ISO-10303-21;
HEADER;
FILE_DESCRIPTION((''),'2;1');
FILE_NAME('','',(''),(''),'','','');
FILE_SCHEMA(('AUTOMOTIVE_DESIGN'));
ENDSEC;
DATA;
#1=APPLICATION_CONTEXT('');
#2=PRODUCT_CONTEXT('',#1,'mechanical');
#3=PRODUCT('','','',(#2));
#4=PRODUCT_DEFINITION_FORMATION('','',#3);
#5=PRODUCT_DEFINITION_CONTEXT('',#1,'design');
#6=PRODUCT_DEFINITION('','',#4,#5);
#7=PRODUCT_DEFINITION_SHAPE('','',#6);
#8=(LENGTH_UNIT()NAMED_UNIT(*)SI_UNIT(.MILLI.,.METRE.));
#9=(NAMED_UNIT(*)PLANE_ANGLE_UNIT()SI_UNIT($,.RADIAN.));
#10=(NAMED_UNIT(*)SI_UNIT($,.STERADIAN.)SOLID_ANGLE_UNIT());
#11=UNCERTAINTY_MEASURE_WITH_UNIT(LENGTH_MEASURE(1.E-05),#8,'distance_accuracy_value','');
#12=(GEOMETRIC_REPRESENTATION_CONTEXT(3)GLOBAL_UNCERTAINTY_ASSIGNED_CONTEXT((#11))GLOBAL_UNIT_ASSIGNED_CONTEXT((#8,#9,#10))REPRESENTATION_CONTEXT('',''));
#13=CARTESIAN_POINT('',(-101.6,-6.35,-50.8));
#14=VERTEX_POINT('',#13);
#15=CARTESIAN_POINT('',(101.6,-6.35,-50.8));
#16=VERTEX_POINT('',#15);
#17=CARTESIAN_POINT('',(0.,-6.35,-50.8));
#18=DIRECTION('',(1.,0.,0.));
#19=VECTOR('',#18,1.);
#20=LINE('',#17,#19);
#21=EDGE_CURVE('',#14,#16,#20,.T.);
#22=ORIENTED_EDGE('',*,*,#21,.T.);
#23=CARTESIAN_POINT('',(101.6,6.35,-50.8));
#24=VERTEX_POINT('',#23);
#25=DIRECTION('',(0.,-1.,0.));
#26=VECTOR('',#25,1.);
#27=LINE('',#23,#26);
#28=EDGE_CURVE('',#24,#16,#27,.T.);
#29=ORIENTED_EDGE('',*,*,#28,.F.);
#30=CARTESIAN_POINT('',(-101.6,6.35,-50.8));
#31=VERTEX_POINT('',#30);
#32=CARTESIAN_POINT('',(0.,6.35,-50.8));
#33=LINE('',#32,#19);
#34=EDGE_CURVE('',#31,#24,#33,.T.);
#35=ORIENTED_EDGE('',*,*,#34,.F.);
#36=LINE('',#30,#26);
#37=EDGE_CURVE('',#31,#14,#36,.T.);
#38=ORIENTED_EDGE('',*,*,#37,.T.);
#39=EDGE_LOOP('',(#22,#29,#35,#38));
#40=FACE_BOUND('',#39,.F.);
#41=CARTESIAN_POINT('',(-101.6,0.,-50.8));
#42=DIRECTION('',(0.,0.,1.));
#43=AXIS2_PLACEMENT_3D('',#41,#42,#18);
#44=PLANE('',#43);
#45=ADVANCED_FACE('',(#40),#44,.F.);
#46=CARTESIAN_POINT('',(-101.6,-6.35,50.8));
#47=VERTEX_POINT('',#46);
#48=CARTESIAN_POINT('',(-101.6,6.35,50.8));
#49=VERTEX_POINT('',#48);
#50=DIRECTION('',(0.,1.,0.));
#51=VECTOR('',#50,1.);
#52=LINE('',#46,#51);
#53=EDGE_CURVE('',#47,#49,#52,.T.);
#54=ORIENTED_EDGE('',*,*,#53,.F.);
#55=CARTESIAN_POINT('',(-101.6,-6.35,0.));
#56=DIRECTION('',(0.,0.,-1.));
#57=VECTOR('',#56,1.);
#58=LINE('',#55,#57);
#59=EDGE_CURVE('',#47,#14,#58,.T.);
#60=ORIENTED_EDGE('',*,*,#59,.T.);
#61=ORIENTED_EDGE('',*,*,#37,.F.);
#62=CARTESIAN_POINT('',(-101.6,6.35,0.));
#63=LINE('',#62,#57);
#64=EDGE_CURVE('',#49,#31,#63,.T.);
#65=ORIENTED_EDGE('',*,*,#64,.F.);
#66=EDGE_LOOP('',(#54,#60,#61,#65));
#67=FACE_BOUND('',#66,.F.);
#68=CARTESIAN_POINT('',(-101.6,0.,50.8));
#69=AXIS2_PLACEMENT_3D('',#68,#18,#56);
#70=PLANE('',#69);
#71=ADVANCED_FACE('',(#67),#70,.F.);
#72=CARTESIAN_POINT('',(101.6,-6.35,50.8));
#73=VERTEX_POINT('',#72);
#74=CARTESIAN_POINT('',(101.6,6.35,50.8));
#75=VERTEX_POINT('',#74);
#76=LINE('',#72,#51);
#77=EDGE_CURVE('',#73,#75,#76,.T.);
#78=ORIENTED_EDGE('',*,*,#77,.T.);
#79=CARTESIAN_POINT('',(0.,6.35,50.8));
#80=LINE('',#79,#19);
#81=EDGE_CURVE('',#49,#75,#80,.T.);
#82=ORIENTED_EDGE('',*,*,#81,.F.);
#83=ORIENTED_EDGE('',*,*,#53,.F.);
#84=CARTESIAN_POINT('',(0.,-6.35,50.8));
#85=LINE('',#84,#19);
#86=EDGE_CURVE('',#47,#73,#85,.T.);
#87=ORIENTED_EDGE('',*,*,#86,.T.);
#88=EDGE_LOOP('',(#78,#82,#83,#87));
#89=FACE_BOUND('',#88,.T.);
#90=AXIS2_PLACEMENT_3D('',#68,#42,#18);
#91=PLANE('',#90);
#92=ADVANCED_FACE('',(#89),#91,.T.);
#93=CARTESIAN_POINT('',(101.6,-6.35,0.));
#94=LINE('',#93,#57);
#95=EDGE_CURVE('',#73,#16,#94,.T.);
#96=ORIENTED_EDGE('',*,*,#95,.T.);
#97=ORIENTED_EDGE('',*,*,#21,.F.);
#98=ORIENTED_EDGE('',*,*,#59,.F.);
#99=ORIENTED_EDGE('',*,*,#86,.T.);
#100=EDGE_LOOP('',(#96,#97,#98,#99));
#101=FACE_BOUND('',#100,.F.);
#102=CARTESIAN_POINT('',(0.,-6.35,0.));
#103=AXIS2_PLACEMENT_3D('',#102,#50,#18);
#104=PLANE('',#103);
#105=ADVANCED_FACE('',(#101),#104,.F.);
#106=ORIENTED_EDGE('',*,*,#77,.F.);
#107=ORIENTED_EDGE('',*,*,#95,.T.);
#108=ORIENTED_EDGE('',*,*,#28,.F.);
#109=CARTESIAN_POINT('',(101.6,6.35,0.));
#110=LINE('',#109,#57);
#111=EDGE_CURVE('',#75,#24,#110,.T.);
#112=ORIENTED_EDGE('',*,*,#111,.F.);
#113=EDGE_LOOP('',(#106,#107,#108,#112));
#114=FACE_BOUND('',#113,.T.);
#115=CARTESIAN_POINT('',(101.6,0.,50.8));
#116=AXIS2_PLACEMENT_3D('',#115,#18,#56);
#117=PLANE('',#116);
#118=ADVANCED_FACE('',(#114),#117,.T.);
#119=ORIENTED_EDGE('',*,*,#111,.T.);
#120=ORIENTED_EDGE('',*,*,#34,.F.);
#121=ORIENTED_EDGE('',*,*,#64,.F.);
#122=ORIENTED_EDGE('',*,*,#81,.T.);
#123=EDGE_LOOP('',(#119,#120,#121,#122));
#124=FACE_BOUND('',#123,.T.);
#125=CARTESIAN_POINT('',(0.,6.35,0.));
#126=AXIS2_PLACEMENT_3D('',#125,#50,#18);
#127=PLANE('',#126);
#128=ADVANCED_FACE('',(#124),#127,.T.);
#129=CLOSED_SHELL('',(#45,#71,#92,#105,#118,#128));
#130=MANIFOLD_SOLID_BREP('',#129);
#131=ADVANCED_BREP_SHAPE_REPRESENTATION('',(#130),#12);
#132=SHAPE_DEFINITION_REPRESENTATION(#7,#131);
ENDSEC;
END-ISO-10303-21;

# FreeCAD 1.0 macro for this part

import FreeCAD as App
import Part
import Sketcher
from FreeCAD import Vector
Q = App.Units.Quantity

doc = App.newDocument("Part")
params = doc.addObject("Spreadsheet::Sheet", "Params")
for row, (alias, value) in enumerate([
    ("sketch1_width", "8 in"),
    ("sketch1_height", "4 in"),
    ("pad1_length", "0.5 in"),
], start=1):
    params.set(f"A{row}", alias)
    params.set(f"B{row}", "=" + value)
    params.setAlias(f"B{row}", alias)

body = doc.addObject("PartDesign::Body", "Body")

sketch1 = doc.addObject("Sketcher::SketchObject", "Sketch")
body.addObject(sketch1)
sketch1.AttachmentSupport = (doc.XZ_Plane, [""])
sketch1.MapMode = "FlatFace"
sketch1.addGeometry(Part.LineSegment(Vector(-102, -51, 0), Vector(-102, 51, 0)), False)
sketch1.addGeometry(Part.LineSegment(Vector(-102, 51, 0), Vector(102, 51, 0)), False)
sketch1.addGeometry(Part.LineSegment(Vector(102, 51, 0), Vector(102, -51, 0)), False)
sketch1.addGeometry(Part.LineSegment(Vector(102, -51, 0), Vector(-102, -51, 0)), False)
sketch1.addConstraint(Sketcher.Constraint("Coincident", 0, 2, 1, 1))
sketch1.addConstraint(Sketcher.Constraint("Coincident", 1, 2, 2, 1))
sketch1.addConstraint(Sketcher.Constraint("Coincident", 2, 2, 3, 1))
sketch1.addConstraint(Sketcher.Constraint("Coincident", 3, 2, 0, 1))
sketch1.addConstraint(Sketcher.Constraint("Vertical", 0))
sketch1.addConstraint(Sketcher.Constraint("Horizontal", 1))
sketch1.addConstraint(Sketcher.Constraint("Vertical", 2))
sketch1.addConstraint(Sketcher.Constraint("Horizontal", 3))
sketch1.addConstraint(Sketcher.Constraint("Symmetric", 0, 2, 2, 2, -1, 1))
sketch1.addConstraint(Sketcher.Constraint("DistanceX", 1, 1, 1, 2, Q("8 in")))
sketch1.addConstraint(Sketcher.Constraint("DistanceY", 0, 1, 0, 2, Q("4 in")))
sketch1.setExpression("Constraints[9]", "Params.sketch1_width")
sketch1.setExpression("Constraints[10]", "Params.sketch1_height")
pad1 = doc.addObject("PartDesign::Pad", "Pad")
body.addObject(pad1)
pad1.Profile = sketch1
pad1.setExpression("Length", "Params.pad1_length")
pad1.Midplane = True

doc.recompute()
